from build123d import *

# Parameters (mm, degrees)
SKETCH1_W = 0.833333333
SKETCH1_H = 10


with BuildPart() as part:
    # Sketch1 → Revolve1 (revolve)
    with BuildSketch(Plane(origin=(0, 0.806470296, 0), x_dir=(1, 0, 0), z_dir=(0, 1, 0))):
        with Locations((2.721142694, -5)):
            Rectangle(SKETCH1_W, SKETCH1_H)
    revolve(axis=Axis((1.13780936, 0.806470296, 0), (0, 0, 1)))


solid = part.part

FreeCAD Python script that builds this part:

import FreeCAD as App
import Part
import Sketcher
from FreeCAD import Vector


def add_polygon(sketch, points):
    """Adds a closed chain of lines whose ends are joined by coincident constraints."""
    first, n = sketch.GeometryCount, len(points)
    for a, b in zip(points, points[1:] + points[:1]):
        sketch.addGeometry(Part.LineSegment(App.Vector(*a, 0), App.Vector(*b, 0)), False)
    for i in range(n):
        sketch.addConstraint(Sketcher.Constraint("Coincident", first + i, 2, first + (i + 1) % n, 1))

doc = App.newDocument("Part")
params = doc.addObject("Spreadsheet::Sheet", "Params")
for row, (alias, value) in enumerate([
    ("sketch1_height", "10 mm"),
    ("revolution_angle", "360 deg"),
], start=1):
    params.set(f"A{row}", alias)
    params.set(f"B{row}", "=" + value)
    params.setAlias(f"B{row}", alias)

body = doc.addObject("PartDesign::Body", "Body")

# Sketch on XZ plane
sketch1 = body.newObject("Sketcher::SketchObject", "Sketch")
sketch1.AttachmentSupport = (doc.getObject("XZ_Plane"), [""])
sketch1.MapMode = "FlatFace"
sketch1.AttachmentOffset = App.Placement(Vector(0, 0, -0.80647), App.Rotation())
add_polygon(sketch1, [(2.3, 0), (2.3, 10), (3.1, 10), (3.1, 0)])  # lines 0-3
sketch1.addGeometry(Part.LineSegment(Vector(1.1, 0, 0), Vector(1.1, 10, 0)), True)  # axis
sketch1.addConstraint([
    Sketcher.Constraint("Vertical", 0),
    Sketcher.Constraint("Horizontal", 1),
    Sketcher.Constraint("Vertical", 2),
    Sketcher.Constraint("Horizontal", 3),
    Sketcher.Constraint("Vertical", 4),
    Sketcher.Constraint("PointOnObject", 2, 2, -1),
    Sketcher.Constraint("PointOnObject", 4, 1, -1),
    Sketcher.Constraint("Horizontal", 1, 2, 4, 2),
    Sketcher.Constraint("DistanceY", 0, 1, 0, 2, 10.0),
    Sketcher.Constraint("DistanceX", 4, 1, 2, 2, 2.0),
    Sketcher.Constraint("DistanceX", 1, 1, 1, 2, 0.833333),
    Sketcher.Constraint("DistanceX", -1, 1, 1, 2, 3.137809),
])
sketch1.setExpression("Constraints[12]", "Params.sketch1_height")
revolution = body.newObject("PartDesign::Revolution", "Revolution")
revolution.Profile = sketch1
revolution.ReferenceAxis = (sketch1, ["Axis0"])
revolution.setExpression("Angle", "Params.revolution_angle")

doc.recompute()
